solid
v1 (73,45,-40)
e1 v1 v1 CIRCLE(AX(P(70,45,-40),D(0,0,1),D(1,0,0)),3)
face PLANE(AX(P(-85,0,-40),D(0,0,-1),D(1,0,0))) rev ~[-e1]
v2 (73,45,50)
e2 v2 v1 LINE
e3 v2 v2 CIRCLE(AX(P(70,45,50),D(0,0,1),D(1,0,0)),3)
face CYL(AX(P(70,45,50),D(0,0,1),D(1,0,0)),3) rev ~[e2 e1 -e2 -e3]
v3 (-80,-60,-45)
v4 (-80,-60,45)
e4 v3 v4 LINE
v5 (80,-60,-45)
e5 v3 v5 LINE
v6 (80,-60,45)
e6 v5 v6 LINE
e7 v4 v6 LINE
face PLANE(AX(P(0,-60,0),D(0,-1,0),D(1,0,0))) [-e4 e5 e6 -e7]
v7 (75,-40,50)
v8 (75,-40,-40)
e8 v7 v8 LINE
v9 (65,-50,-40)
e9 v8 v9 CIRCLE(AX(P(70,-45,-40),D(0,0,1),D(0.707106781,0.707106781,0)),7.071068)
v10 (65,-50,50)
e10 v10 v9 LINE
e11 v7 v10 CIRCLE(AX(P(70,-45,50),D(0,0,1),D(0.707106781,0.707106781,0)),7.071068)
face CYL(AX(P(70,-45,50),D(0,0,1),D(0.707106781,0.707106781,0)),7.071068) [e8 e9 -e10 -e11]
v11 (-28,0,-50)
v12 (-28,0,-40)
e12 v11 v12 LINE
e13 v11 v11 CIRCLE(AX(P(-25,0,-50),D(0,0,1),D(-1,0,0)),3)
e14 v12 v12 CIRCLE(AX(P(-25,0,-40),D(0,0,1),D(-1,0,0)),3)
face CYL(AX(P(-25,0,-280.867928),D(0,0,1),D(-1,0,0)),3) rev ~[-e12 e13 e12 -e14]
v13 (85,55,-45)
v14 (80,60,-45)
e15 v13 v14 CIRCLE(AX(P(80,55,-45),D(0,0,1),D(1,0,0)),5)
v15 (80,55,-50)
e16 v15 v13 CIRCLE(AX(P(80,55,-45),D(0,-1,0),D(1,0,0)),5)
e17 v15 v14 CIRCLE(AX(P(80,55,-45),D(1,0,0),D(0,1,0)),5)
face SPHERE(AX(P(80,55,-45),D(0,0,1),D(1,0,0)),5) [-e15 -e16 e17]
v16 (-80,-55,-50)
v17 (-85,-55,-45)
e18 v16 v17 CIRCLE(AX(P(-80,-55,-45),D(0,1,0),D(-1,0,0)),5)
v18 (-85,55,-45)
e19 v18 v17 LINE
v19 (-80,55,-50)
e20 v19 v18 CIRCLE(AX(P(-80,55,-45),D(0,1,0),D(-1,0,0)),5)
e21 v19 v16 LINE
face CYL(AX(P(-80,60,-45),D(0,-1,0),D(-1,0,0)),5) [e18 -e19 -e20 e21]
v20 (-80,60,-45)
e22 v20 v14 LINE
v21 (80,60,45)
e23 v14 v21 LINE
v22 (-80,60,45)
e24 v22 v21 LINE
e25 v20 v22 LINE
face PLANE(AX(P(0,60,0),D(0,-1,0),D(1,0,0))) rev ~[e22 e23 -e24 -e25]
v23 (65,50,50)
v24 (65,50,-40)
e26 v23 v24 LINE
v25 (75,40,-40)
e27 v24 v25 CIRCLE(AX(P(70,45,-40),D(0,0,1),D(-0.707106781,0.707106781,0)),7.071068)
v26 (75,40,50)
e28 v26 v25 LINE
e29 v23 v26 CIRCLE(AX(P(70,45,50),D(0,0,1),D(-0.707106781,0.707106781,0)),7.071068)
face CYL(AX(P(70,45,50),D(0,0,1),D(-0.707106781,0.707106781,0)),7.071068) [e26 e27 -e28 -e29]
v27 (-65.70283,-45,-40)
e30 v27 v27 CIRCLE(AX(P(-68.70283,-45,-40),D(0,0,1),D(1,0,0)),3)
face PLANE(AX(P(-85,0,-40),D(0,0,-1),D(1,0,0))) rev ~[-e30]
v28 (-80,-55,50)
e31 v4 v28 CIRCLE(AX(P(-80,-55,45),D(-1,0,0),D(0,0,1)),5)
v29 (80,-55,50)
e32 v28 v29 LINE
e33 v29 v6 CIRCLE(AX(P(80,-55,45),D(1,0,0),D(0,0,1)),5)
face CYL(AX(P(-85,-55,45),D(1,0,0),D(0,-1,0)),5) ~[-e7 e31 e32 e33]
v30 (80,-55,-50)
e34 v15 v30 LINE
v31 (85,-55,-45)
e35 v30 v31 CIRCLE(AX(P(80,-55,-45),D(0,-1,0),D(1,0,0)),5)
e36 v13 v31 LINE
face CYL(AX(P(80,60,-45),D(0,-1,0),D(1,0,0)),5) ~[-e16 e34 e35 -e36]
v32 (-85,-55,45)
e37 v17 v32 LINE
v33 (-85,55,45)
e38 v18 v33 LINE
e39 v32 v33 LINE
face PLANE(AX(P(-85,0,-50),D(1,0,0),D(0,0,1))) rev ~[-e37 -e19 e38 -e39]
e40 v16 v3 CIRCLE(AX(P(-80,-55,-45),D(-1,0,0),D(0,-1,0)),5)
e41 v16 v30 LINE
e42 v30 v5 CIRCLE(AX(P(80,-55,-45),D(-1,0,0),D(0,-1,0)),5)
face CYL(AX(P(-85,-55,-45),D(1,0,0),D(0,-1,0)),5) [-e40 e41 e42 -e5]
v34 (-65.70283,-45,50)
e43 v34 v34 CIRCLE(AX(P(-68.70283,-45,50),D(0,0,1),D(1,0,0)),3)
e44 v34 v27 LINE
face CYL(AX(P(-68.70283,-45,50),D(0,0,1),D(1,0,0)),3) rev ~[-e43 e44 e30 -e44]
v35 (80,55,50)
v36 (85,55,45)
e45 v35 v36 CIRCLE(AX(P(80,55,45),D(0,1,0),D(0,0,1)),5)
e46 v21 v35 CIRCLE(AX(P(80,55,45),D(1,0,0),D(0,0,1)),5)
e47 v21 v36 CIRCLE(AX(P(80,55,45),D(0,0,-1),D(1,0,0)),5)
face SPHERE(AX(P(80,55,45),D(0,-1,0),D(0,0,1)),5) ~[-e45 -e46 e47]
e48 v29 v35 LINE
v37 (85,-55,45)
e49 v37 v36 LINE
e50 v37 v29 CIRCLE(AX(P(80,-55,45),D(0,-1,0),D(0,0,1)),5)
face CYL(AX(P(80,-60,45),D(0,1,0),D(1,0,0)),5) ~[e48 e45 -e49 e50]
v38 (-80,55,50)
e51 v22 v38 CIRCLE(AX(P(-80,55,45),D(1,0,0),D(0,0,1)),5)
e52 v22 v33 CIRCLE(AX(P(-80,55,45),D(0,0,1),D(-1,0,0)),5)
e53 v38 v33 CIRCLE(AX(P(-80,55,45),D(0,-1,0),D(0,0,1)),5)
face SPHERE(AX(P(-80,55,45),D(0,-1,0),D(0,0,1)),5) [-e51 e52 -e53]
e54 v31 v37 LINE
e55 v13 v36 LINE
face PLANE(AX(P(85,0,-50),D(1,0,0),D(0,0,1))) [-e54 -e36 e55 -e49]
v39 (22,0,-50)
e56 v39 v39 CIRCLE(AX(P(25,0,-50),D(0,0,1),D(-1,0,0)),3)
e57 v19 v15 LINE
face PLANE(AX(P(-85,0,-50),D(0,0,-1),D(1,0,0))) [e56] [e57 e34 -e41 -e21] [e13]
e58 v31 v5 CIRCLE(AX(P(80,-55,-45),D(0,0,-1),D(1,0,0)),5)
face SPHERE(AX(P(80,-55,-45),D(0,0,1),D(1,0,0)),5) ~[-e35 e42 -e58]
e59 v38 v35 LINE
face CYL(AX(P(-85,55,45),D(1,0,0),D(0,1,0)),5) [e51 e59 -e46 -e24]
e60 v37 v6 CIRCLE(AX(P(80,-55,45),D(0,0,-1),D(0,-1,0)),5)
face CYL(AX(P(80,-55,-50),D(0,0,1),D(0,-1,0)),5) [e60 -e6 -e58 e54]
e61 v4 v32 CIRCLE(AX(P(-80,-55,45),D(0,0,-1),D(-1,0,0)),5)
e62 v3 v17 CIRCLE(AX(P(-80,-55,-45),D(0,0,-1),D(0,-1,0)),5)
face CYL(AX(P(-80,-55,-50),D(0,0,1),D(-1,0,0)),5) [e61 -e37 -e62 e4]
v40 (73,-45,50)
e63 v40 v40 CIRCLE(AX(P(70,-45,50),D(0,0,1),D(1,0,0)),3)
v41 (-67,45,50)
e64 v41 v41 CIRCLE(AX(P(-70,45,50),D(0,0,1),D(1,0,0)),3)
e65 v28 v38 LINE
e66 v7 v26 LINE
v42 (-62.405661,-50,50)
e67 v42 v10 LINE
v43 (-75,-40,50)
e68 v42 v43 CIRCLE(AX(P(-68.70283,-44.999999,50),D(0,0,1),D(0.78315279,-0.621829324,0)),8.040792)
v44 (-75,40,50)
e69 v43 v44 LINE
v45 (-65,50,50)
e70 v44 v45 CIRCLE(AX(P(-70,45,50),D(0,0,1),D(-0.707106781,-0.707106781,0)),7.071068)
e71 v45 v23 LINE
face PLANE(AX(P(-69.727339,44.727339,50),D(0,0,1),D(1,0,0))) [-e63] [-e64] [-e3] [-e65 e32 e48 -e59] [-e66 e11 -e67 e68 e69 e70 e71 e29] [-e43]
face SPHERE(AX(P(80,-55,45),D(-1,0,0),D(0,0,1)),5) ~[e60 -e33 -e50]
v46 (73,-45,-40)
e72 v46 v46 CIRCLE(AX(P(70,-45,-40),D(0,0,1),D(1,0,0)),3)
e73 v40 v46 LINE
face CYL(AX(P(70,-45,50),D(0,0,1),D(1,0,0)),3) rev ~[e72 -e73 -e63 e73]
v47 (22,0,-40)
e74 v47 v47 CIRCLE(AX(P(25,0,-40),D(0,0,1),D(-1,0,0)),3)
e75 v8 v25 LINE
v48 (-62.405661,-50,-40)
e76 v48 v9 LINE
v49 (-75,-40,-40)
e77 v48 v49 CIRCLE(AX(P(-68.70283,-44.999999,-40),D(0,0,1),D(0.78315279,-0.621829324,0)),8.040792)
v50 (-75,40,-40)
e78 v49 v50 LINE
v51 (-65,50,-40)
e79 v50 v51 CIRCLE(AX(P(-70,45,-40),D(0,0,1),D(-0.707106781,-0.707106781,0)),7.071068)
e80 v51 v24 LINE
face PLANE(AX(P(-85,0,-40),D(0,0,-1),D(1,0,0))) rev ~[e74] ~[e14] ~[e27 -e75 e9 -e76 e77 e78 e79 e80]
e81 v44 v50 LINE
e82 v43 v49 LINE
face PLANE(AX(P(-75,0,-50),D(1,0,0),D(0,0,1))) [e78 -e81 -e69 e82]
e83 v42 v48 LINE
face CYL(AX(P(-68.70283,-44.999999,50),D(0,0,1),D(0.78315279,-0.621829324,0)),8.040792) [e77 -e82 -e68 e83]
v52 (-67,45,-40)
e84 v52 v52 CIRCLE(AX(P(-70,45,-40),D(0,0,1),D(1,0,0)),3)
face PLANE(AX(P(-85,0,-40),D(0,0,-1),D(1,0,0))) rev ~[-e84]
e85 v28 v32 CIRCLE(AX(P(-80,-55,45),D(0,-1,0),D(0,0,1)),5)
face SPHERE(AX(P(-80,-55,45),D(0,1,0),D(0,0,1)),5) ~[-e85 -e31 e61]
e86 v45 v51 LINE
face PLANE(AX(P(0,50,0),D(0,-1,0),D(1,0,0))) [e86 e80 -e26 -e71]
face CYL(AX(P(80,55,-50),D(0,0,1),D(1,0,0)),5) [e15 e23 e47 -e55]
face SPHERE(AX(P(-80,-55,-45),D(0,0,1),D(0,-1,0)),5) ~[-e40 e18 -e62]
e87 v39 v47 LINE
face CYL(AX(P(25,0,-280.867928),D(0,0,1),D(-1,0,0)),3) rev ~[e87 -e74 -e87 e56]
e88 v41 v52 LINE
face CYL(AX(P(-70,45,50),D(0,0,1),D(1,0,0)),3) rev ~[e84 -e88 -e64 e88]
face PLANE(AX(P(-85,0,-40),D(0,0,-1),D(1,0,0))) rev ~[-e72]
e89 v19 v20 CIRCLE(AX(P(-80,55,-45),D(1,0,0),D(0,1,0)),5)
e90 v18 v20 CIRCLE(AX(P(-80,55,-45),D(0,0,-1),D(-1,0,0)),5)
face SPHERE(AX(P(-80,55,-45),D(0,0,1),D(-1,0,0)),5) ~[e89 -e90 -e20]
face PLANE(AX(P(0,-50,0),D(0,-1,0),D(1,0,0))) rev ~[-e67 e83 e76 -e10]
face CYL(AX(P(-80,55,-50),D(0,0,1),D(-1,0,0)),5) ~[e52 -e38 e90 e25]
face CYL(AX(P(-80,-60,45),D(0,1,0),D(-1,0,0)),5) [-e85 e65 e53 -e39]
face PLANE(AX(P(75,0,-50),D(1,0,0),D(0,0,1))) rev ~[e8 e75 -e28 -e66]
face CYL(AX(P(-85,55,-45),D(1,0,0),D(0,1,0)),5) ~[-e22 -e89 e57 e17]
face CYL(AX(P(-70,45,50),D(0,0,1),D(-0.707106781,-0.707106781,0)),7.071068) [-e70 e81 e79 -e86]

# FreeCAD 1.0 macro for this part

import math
import FreeCAD as App
import Part
import Sketcher

V = App.Vector


def edges_at(feature, points):
    """Names of the edges that pass closest to the given points."""
    edges = feature.Shape.Edges
    near = lambda p: min(range(len(edges)), key=lambda i: edges[i].distToShape(Part.Vertex(*p))[0])
    return sorted({f"Edge{near(p) + 1}" for p in points})


def faces_at(feature, points):
    """Names of the faces that lie closest to the given points."""
    faces = feature.Shape.Faces
    near = lambda p: min(range(len(faces)), key=lambda i: faces[i].distToShape(Part.Vertex(*p))[0])
    return sorted({f"Face{near(p) + 1}" for p in points})

doc = App.newDocument("Part")
body = doc.addObject("PartDesign::Body", "Body")

sketch1 = body.newObject("Sketcher::SketchObject", "Sketch")
sketch1.AttachmentSupport = (doc.getObject("XZ_Plane"), [""])
sketch1.MapMode = "FlatFace"
sketch1.addGeometry([
    Part.LineSegment(V(-85, 50, 0), V(-85, -50, 0)),
    Part.LineSegment(V(-85, -50, 0), V(85, -50, 0)),
    Part.LineSegment(V(85, -50, 0), V(85, 50, 0)),
    Part.LineSegment(V(85, 50, 0), V(-85, 50, 0)),
], False)
sketch1.addConstraint([
    Sketcher.Constraint("Coincident", 0, 2, 1, 1),
    Sketcher.Constraint("Coincident", 1, 2, 2, 1),
    Sketcher.Constraint("Coincident", 2, 2, 3, 1),
    Sketcher.Constraint("Coincident", 3, 2, 0, 1),
    Sketcher.Constraint("Vertical", 0),
    Sketcher.Constraint("Horizontal", 1),
    Sketcher.Constraint("Vertical", 2),
    Sketcher.Constraint("Horizontal", 3),
    Sketcher.Constraint("Symmetric", 0, 2, 2, 2, -1, 1),
    Sketcher.Constraint("DistanceX", 1, 1, 1, 2, 170.0),
    Sketcher.Constraint("DistanceY", 0, 2, 0, 1, 100.0),
])
pad1 = body.newObject("PartDesign::Pad", "Pad")
pad1.Profile = sketch1
pad1.Length = 120
pad1.Midplane = True
doc.recompute()

thickness = body.newObject("PartDesign::Thickness", "Thickness")
thickness.Base = (pad1, faces_at(pad1, [(0, 0, 50)]))
thickness.Value = 10
thickness.Reversed = True
thickness.Join = "Arc"
doc.recompute()

fillet = body.newObject("PartDesign::Fillet", "Fillet")
fillet.Base = (thickness, edges_at(thickness, [
    (-85, 0, 50),
    (0, -60, 50),
    (85, 0, 50),
    (0, 60, 50),
    (85, 60, 0),
    (85, -60, 0),
    (85, 0, -50),
    (-85, -60, 0),
    (0, -60, -50),
    (-85, 60, 0),
    (-85, 0, -50),
    (0, 60, -50),
]))
fillet.Radius = 5

sketch2 = body.newObject("Sketcher::SketchObject", "Sketch001")
sketch2.AttachmentSupport = (doc.getObject("XY_Plane"), [""])
sketch2.MapMode = "FlatFace"
sketch2.AttachmentOffset = App.Placement(V(0, 0, 50), App.Rotation())
sketch2.addGeometry([
    Part.LineSegment(V(-65, 50, 0), V(-75, 50, 0)),
    Part.LineSegment(V(-75, 50, 0), V(-75, 40, 0)),
    Part.ArcOfCircle(Part.Circle(V(-70, 45, 0), V(0, 0, 1), 7.1), math.radians(-135), math.radians(45)),
    Part.Circle(V(-70, 45, 0), V(0, 0, 1), 3),
    Part.LineSegment(V(75, 40, 0), V(75, 50, 0)),
    Part.LineSegment(V(75, 50, 0), V(65, 50, 0)),
    Part.ArcOfCircle(Part.Circle(V(70, 45, 0), V(0, 0, 1), 7.1), math.radians(135), math.radians(315)),
    Part.Circle(V(70, 45, 0), V(0, 0, 1), 3),
    Part.LineSegment(V(65, -50, 0), V(75, -50, 0)),
    Part.LineSegment(V(75, -50, 0), V(75, -40, 0)),
    Part.ArcOfCircle(Part.Circle(V(70, -45, 0), V(0, 0, 1), 7.1), math.radians(45), math.radians(225)),
    Part.Circle(V(70, -45, 0), V(0, 0, 1), 3),
    Part.LineSegment(V(-75, -40, 0), V(-75, -50, 0)),
    Part.LineSegment(V(-75, -50, 0), V(-62.4, -50, 0)),
    Part.ArcOfCircle(Part.Circle(V(-68.7, -45, 0), V(0, 0, 1), 8), math.radians(-38), math.radians(142)),
    Part.Circle(V(-68.7, -45, 0), V(0, 0, 1), 3),
], False)
sketch2.addConstraint([
    Sketcher.Constraint("Coincident", 0, 2, 1, 1),
    Sketcher.Constraint("Coincident", 1, 2, 2, 1),
    Sketcher.Constraint("Coincident", 2, 2, 0, 1),
    Sketcher.Constraint("Coincident", 4, 2, 5, 1),
    Sketcher.Constraint("Coincident", 5, 2, 6, 1),
    Sketcher.Constraint("Coincident", 6, 2, 4, 1),
    Sketcher.Constraint("Coincident", 8, 2, 9, 1),
    Sketcher.Constraint("Coincident", 9, 2, 10, 1),
    Sketcher.Constraint("Coincident", 10, 2, 8, 1),
    Sketcher.Constraint("Coincident", 12, 2, 13, 1),
    Sketcher.Constraint("Coincident", 13, 2, 14, 1),
    Sketcher.Constraint("Coincident", 14, 2, 12, 1),
    Sketcher.Constraint("Horizontal", 0),
    Sketcher.Constraint("Vertical", 1),
    Sketcher.Constraint("Vertical", 4),
    Sketcher.Constraint("Horizontal", 5),
    Sketcher.Constraint("Horizontal", 8),
    Sketcher.Constraint("Vertical", 9),
    Sketcher.Constraint("Vertical", 12),
    Sketcher.Constraint("Horizontal", 13),
    Sketcher.Constraint("Coincident", 3, 3, 2, 3),
    Sketcher.Constraint("Coincident", 7, 3, 6, 3),
    Sketcher.Constraint("Coincident", 11, 3, 10, 3),
    Sketcher.Constraint("Coincident", 15, 3, 14, 3),
    Sketcher.Constraint("Equal", 2, 6),
    Sketcher.Constraint("Equal", 3, 7),
    Sketcher.Constraint("Equal", 6, 10),
    Sketcher.Constraint("Equal", 7, 11),
    Sketcher.Constraint("Equal", 11, 15),
    Sketcher.Constraint("Symmetric", 2, 3, 10, 3, -1, 1),
    Sketcher.Constraint("Symmetric", 0, 2, 8, 2, -1, 1),
    Sketcher.Constraint("Symmetric", 4, 2, 12, 2, -1, 1),
    Sketcher.Constraint("Symmetric", 2, 3, 6, 3, -2),
    Sketcher.Constraint("Symmetric", 0, 2, 4, 2, -2),
    Sketcher.Constraint("Horizontal", 11, 3, 14, 3),
    Sketcher.Constraint("Horizontal", 9, 2, 14, 2),
    Sketcher.Constraint("Equal", 8, 1),
    Sketcher.Constraint("Diameter", 3, 6.0),
    Sketcher.Constraint("DistanceX", 0, 2, 0, 1, 10.0),
    Sketcher.Constraint("DistanceX", 2, 3, -1, 1, 70.0),
    Sketcher.Constraint("DistanceY", -1, 1, 2, 3, 45.0),
    Sketcher.Constraint("DistanceX", 0, 2, -1, 1, 75.0),
    Sketcher.Constraint("Radius", 14, 8.040792),
])
pad2 = body.newObject("PartDesign::Pad", "Pad001")
pad2.Profile = sketch2
pad2.Type = "UpToLast"
pad2.Reversed = True

sketch3 = body.newObject("Sketcher::SketchObject", "Sketch002")
sketch3.AttachmentSupport = (doc.getObject("XY_Plane"), [""])
sketch3.MapMode = "FlatFace"
sketch3.AttachmentOffset = App.Placement(V(0, 0, -50), App.Rotation())
sketch3.addGeometry([
    Part.Circle(V(-25, 0, 0), V(0, 0, 1), 3),
    Part.Circle(V(25, 0, 0), V(0, 0, 1), 3),
], False)
sketch3.addConstraint([
    Sketcher.Constraint("Equal", 0, 1),
    Sketcher.Constraint("Symmetric", 0, 3, 1, 3, -1, 1),
    Sketcher.Constraint("PointOnObject", 0, 3, -1),
    Sketcher.Constraint("Diameter", 0, 6.0),
    Sketcher.Constraint("DistanceX", 0, 3, -1, 1, 25.0),
])
doc.recompute()
hole = body.newObject("PartDesign::Hole", "Hole")
hole.Profile = sketch3
hole.ThreadType = "None"
hole.Diameter = 6
hole.DepthType = "ThroughAll"
hole.Reversed = True

doc.recompute()
